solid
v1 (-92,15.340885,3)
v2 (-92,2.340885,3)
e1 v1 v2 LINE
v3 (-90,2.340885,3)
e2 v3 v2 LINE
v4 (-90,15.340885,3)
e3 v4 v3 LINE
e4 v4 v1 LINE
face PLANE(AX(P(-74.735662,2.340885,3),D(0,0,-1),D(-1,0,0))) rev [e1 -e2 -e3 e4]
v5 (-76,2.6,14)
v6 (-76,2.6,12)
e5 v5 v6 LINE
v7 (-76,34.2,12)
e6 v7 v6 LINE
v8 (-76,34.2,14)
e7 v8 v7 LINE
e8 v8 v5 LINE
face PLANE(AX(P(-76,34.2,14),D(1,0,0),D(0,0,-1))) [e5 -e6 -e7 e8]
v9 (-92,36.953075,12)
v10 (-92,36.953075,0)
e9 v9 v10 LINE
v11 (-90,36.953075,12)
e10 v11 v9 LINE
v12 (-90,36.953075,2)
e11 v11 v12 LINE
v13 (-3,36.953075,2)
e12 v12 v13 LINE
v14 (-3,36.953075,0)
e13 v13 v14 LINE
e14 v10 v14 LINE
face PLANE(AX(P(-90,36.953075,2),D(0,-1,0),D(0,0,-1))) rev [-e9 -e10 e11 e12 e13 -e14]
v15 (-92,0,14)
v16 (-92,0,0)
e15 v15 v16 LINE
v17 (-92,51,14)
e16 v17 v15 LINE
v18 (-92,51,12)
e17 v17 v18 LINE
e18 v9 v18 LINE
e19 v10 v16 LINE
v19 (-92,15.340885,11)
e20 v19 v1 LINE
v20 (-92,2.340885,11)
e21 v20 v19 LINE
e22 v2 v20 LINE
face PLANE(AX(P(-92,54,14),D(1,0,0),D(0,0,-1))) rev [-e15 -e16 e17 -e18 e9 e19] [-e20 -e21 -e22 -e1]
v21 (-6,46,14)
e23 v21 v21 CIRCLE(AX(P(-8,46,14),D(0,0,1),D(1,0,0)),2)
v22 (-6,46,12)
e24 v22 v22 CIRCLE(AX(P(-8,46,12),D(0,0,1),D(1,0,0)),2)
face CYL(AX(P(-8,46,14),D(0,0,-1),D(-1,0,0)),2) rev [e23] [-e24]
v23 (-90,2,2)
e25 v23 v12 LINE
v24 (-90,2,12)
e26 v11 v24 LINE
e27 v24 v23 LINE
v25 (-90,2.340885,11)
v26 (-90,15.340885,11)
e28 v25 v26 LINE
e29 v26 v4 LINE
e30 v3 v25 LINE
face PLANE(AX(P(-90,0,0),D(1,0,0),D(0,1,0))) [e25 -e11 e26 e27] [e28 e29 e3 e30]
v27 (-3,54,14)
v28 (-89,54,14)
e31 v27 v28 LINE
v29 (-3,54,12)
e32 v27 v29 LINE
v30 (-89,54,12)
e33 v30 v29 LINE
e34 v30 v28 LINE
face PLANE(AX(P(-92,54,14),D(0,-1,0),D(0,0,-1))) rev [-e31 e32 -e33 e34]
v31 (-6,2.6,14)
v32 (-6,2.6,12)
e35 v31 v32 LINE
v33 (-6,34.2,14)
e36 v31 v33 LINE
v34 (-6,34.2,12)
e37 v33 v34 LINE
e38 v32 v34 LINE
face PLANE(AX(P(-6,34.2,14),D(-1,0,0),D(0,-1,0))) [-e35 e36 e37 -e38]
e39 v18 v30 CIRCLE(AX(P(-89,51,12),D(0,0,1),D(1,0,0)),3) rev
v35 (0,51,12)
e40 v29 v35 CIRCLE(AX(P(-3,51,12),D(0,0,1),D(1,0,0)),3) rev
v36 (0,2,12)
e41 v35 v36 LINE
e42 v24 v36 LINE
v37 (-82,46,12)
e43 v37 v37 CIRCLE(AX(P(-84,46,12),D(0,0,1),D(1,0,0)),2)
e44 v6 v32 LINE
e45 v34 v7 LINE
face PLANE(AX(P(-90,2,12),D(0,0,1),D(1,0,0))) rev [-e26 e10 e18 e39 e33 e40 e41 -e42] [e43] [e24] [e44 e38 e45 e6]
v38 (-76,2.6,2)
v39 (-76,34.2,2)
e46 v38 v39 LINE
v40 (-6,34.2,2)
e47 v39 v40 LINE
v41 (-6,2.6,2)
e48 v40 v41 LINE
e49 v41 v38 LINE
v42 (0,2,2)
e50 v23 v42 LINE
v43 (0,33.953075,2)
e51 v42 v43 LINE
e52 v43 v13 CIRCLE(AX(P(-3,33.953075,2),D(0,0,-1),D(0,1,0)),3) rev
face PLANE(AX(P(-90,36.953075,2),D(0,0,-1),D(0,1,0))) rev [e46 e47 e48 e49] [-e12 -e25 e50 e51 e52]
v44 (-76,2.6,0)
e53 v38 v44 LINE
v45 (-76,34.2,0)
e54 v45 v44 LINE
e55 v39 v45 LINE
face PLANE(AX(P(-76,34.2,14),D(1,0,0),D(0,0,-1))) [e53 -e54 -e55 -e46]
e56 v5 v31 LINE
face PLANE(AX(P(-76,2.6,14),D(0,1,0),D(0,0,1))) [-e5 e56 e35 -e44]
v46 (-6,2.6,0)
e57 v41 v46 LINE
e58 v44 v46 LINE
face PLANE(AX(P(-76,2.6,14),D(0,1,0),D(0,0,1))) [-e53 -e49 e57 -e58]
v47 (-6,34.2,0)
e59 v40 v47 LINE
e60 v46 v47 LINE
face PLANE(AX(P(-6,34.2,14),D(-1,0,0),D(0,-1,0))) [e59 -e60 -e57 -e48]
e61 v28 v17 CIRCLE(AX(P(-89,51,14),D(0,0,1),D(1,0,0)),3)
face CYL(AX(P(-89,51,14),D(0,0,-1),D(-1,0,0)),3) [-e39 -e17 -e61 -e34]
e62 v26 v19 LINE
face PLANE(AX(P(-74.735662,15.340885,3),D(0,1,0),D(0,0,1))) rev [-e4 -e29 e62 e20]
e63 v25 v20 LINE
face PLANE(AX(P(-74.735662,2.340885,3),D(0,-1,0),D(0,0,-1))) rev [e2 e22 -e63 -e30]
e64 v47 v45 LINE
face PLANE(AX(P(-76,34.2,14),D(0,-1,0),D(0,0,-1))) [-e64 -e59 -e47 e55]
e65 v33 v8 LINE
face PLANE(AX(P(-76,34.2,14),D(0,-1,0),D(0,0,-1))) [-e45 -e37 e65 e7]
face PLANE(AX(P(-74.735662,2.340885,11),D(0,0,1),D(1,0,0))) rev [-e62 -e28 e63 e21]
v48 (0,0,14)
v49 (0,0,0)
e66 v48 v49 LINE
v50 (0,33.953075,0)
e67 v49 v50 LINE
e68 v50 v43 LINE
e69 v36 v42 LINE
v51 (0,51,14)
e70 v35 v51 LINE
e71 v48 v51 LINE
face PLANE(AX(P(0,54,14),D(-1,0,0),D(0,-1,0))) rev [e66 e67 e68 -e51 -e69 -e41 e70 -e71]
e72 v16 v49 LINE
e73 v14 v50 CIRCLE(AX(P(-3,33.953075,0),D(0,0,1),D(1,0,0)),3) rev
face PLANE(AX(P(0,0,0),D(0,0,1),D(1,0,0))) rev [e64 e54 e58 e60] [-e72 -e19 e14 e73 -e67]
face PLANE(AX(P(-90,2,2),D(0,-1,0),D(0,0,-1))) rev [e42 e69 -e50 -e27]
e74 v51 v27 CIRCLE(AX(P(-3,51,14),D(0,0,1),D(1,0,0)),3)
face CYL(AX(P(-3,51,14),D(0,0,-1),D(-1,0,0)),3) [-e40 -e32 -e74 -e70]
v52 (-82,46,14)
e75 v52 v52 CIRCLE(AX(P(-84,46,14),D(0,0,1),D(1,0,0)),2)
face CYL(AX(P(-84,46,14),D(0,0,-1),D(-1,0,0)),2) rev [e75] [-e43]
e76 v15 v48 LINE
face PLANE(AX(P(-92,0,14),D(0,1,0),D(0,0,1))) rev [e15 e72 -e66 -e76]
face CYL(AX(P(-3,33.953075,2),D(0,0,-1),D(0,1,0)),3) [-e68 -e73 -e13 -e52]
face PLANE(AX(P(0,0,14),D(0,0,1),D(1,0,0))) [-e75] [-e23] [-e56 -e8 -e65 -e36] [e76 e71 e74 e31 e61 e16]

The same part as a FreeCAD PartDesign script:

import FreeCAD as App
import Part
import Sketcher

V = App.Vector
Q = App.Units.Quantity


def edges_at(feature, points):
    """Names of the edges that pass closest to the given points."""
    edges = feature.Shape.Edges
    near = lambda p: min(range(len(edges)), key=lambda i: edges[i].distToShape(Part.Vertex(*p))[0])
    return sorted({f"Edge{near(p) + 1}" for p in points})

doc = App.newDocument("Part")
params = doc.addObject("Spreadsheet::Sheet", "Params")
for row, (alias, value) in enumerate([
    ("sketch1_diameter", "4 mm"),
    ("sketch1_width", "92 mm"),
    ("sketch1_width2", "70 mm"),
    ("sketch1_height", "54 mm"),
    ("sketch1_height2", "31.6 mm"),
    ("pad1_length", "14 mm"),
    ("sketch2_width", "52 mm"),
    ("sketch2_height", "2 mm"),
    ("sketch2_height2", "12 mm"),
    ("pocket1_length", "90 mm"),
    ("sketch3_width", "2 mm"),
    ("pocket2_length", "12 mm"),
    ("sketch4_width", "13 mm"),
    ("sketch4_height", "8 mm"),
    ("pocket3_length", "2 mm"),
    ("fillet_radius", "3 mm"),
    ("fillet2_radius", "3 mm"),
    ("fillet3_radius", "3 mm"),
], start=1):
    params.set(f"A{row}", alias)
    params.set(f"B{row}", "=" + value)
    params.setAlias(f"B{row}", alias)

body = doc.addObject("PartDesign::Body", "Body")

# Sketch on XY plane
sketch1 = body.newObject("Sketcher::SketchObject", "Sketch")
sketch1.AttachmentSupport = (doc.getObject("XY_Plane"), [""])
sketch1.MapMode = "FlatFace"
sketch1.addGeometry(Part.LineSegment(V(-92, 54, 0), V(-92, 0, 0)), False)
sketch1.addGeometry(Part.LineSegment(V(-92, 0, 0), V(0, 0, 0)), False)
sketch1.addGeometry(Part.LineSegment(V(0, 0, 0), V(0, 54, 0)), False)
sketch1.addGeometry(Part.LineSegment(V(0, 54, 0), V(-92, 54, 0)), False)
sketch1.addGeometry(Part.LineSegment(V(-6, 2.6, 0), V(-76, 2.6, 0)), False)
sketch1.addGeometry(Part.LineSegment(V(-76, 2.6, 0), V(-76, 34.2, 0)), False)
sketch1.addGeometry(Part.LineSegment(V(-76, 34.2, 0), V(-6, 34.2, 0)), False)
sketch1.addGeometry(Part.LineSegment(V(-6, 34.2, 0), V(-6, 2.6, 0)), False)
sketch1.addGeometry(Part.Circle(V(-84, 46, 0), V(0, 0, 1), 2), False)
sketch1.addGeometry(Part.Circle(V(-8, 46, 0), V(0, 0, 1), 2), False)
sketch1.addConstraint(Sketcher.Constraint("Coincident", 0, 2, 1, 1))
sketch1.addConstraint(Sketcher.Constraint("Coincident", 1, 2, 2, 1))
sketch1.addConstraint(Sketcher.Constraint("Coincident", 2, 2, 3, 1))
sketch1.addConstraint(Sketcher.Constraint("Coincident", 3, 2, 0, 1))
sketch1.addConstraint(Sketcher.Constraint("Coincident", 4, 2, 5, 1))
sketch1.addConstraint(Sketcher.Constraint("Coincident", 5, 2, 6, 1))
sketch1.addConstraint(Sketcher.Constraint("Coincident", 6, 2, 7, 1))
sketch1.addConstraint(Sketcher.Constraint("Coincident", 7, 2, 4, 1))
sketch1.addConstraint(Sketcher.Constraint("Vertical", 0))
sketch1.addConstraint(Sketcher.Constraint("Horizontal", 1))
sketch1.addConstraint(Sketcher.Constraint("Vertical", 2))
sketch1.addConstraint(Sketcher.Constraint("Horizontal", 3))
sketch1.addConstraint(Sketcher.Constraint("Horizontal", 4))
sketch1.addConstraint(Sketcher.Constraint("Vertical", 5))
sketch1.addConstraint(Sketcher.Constraint("Horizontal", 6))
sketch1.addConstraint(Sketcher.Constraint("Vertical", 7))
sketch1.addConstraint(Sketcher.Constraint("Coincident", 1, 2, -1, 1))
sketch1.addConstraint(Sketcher.Constraint("Equal", 8, 9))
sketch1.addConstraint(Sketcher.Constraint("Horizontal", 8, 3, 9, 3))
sketch1.addConstraint(Sketcher.Constraint("Diameter", 8, Q("4 mm")))
sketch1.addConstraint(Sketcher.Constraint("DistanceX", 1, 1, 1, 2, Q("92 mm")))
sketch1.addConstraint(Sketcher.Constraint("DistanceX", 4, 2, 4, 1, Q("70 mm")))
sketch1.addConstraint(Sketcher.Constraint("DistanceY", 0, 2, 0, 1, Q("54 mm")))
sketch1.addConstraint(Sketcher.Constraint("DistanceY", 5, 1, 5, 2, Q("31.6 mm")))
sketch1.addConstraint(Sketcher.Constraint("DistanceX", 8, 3, -1, 1, Q("84 mm")))
sketch1.addConstraint(Sketcher.Constraint("DistanceY", -1, 1, 8, 3, Q("46 mm")))
sketch1.addConstraint(Sketcher.Constraint("DistanceX", 9, 3, -1, 1, Q("8 mm")))
sketch1.addConstraint(Sketcher.Constraint("DistanceX", 4, 2, -1, 1, Q("76 mm")))
sketch1.addConstraint(Sketcher.Constraint("DistanceY", -1, 1, 4, 2, Q("2.6 mm")))
sketch1.setExpression("Constraints[19]", "Params.sketch1_diameter")
sketch1.setExpression("Constraints[20]", "Params.sketch1_width")
sketch1.setExpression("Constraints[21]", "Params.sketch1_width2")
sketch1.setExpression("Constraints[22]", "Params.sketch1_height")
sketch1.setExpression("Constraints[23]", "Params.sketch1_height2")
pad1 = body.newObject("PartDesign::Pad", "Pad")
pad1.Profile = sketch1
pad1.setExpression("Length", "Params.pad1_length")

# Sketch on YZ plane
sketch2 = body.newObject("Sketcher::SketchObject", "Sketch001")
sketch2.AttachmentSupport = (doc.getObject("YZ_Plane"), [""])
sketch2.MapMode = "FlatFace"
sketch2.addGeometry(Part.LineSegment(V(2, 2, 0), V(37, 2, 0)), False)
sketch2.addGeometry(Part.LineSegment(V(37, 2, 0), V(37, 0, 0)), False)
sketch2.addGeometry(Part.LineSegment(V(37, 0, 0), V(54, 0, 0)), False)
sketch2.addGeometry(Part.LineSegment(V(54, 0, 0), V(54, 12, 0)), False)
sketch2.addGeometry(Part.LineSegment(V(54, 12, 0), V(2, 12, 0)), False)
sketch2.addGeometry(Part.LineSegment(V(2, 12, 0), V(2, 2, 0)), False)
sketch2.addConstraint(Sketcher.Constraint("Coincident", 0, 2, 1, 1))
sketch2.addConstraint(Sketcher.Constraint("Coincident", 1, 2, 2, 1))
sketch2.addConstraint(Sketcher.Constraint("Coincident", 2, 2, 3, 1))
sketch2.addConstraint(Sketcher.Constraint("Coincident", 3, 2, 4, 1))
sketch2.addConstraint(Sketcher.Constraint("Coincident", 4, 2, 5, 1))
sketch2.addConstraint(Sketcher.Constraint("Coincident", 5, 2, 0, 1))
sketch2.addConstraint(Sketcher.Constraint("Horizontal", 0))
sketch2.addConstraint(Sketcher.Constraint("Vertical", 1))
sketch2.addConstraint(Sketcher.Constraint("Horizontal", 2))
sketch2.addConstraint(Sketcher.Constraint("Vertical", 3))
sketch2.addConstraint(Sketcher.Constraint("Horizontal", 4))
sketch2.addConstraint(Sketcher.Constraint("Vertical", 5))
sketch2.addConstraint(Sketcher.Constraint("PointOnObject", 1, 2, -1))
sketch2.addConstraint(Sketcher.Constraint("DistanceX", 4, 2, 4, 1, Q("52 mm")))
sketch2.addConstraint(Sketcher.Constraint("DistanceY", 1, 2, 1, 1, Q("2 mm")))
sketch2.addConstraint(Sketcher.Constraint("DistanceY", 3, 1, 3, 2, Q("12 mm")))
sketch2.addConstraint(Sketcher.Constraint("DistanceX", -1, 1, 2, 2, Q("54 mm")))
sketch2.addConstraint(Sketcher.Constraint("DistanceX", 0, 1, 0, 2, Q("34.953075 mm")))
sketch2.setExpression("Constraints[13]", "Params.sketch2_width")
sketch2.setExpression("Constraints[14]", "Params.sketch2_height")
sketch2.setExpression("Constraints[15]", "Params.sketch2_height2")
pocket1 = body.newObject("PartDesign::Pocket", "Pocket")
pocket1.Profile = sketch2
pocket1.setExpression("Length", "Params.pocket1_length")

# Sketch on XY plane
sketch3 = body.newObject("Sketcher::SketchObject", "Sketch002")
sketch3.AttachmentSupport = (doc.getObject("XY_Plane"), [""])
sketch3.MapMode = "FlatFace"
sketch3.addGeometry(Part.LineSegment(V(-90, 54, 0), V(-90, 37, 0)), False)
sketch3.addGeometry(Part.LineSegment(V(-90, 37, 0), V(-92, 37, 0)), False)
sketch3.addGeometry(Part.LineSegment(V(-92, 37, 0), V(-92, 54, 0)), False)
sketch3.addGeometry(Part.LineSegment(V(-92, 54, 0), V(-90, 54, 0)), False)
sketch3.addConstraint(Sketcher.Constraint("Coincident", 0, 2, 1, 1))
sketch3.addConstraint(Sketcher.Constraint("Coincident", 1, 2, 2, 1))
sketch3.addConstraint(Sketcher.Constraint("Coincident", 2, 2, 3, 1))
sketch3.addConstraint(Sketcher.Constraint("Coincident", 3, 2, 0, 1))
sketch3.addConstraint(Sketcher.Constraint("Vertical", 0))
sketch3.addConstraint(Sketcher.Constraint("Horizontal", 1))
sketch3.addConstraint(Sketcher.Constraint("Vertical", 2))
sketch3.addConstraint(Sketcher.Constraint("Horizontal", 3))
sketch3.addConstraint(Sketcher.Constraint("DistanceX", 1, 2, 1, 1, Q("2 mm")))
sketch3.addConstraint(Sketcher.Constraint("DistanceX", 0, 2, -1, 1, Q("90 mm")))
sketch3.addConstraint(Sketcher.Constraint("DistanceY", -1, 1, 2, 2, Q("54 mm")))
sketch3.addConstraint(Sketcher.Constraint("DistanceY", 0, 2, 0, 1, Q("17.046925 mm")))
sketch3.setExpression("Constraints[8]", "Params.sketch3_width")
pocket2 = body.newObject("PartDesign::Pocket", "Pocket001")
pocket2.Profile = sketch3
pocket2.setExpression("Length", "Params.pocket2_length")
pocket2.Reversed = True

# Sketch on YZ plane
sketch4 = body.newObject("Sketcher::SketchObject", "Sketch003")
sketch4.AttachmentSupport = (doc.getObject("YZ_Plane"), [""])
sketch4.MapMode = "FlatFace"
sketch4.AttachmentOffset = App.Placement(V(0, 0, -92), App.Rotation())
sketch4.addGeometry(Part.LineSegment(V(15, 3, 0), V(2, 3, 0)), False)
sketch4.addGeometry(Part.LineSegment(V(2, 3, 0), V(2, 11, 0)), False)
sketch4.addGeometry(Part.LineSegment(V(2, 11, 0), V(15, 11, 0)), False)
sketch4.addGeometry(Part.LineSegment(V(15, 11, 0), V(15, 3, 0)), False)
sketch4.addConstraint(Sketcher.Constraint("Coincident", 0, 2, 1, 1))
sketch4.addConstraint(Sketcher.Constraint("Coincident", 1, 2, 2, 1))
sketch4.addConstraint(Sketcher.Constraint("Coincident", 2, 2, 3, 1))
sketch4.addConstraint(Sketcher.Constraint("Coincident", 3, 2, 0, 1))
sketch4.addConstraint(Sketcher.Constraint("Horizontal", 0))
sketch4.addConstraint(Sketcher.Constraint("Vertical", 1))
sketch4.addConstraint(Sketcher.Constraint("Horizontal", 2))
sketch4.addConstraint(Sketcher.Constraint("Vertical", 3))
sketch4.addConstraint(Sketcher.Constraint("DistanceX", 0, 2, 0, 1, Q("13 mm")))
sketch4.addConstraint(Sketcher.Constraint("DistanceY", 1, 1, 1, 2, Q("8 mm")))
sketch4.addConstraint(Sketcher.Constraint("DistanceY", -1, 1, 0, 2, Q("3 mm")))
sketch4.addConstraint(Sketcher.Constraint("DistanceX", -1, 1, 0, 2, Q("2.340885 mm")))
sketch4.setExpression("Constraints[8]", "Params.sketch4_width")
sketch4.setExpression("Constraints[9]", "Params.sketch4_height")
pocket3 = body.newObject("PartDesign::Pocket", "Pocket002")
pocket3.Profile = sketch4
pocket3.setExpression("Length", "Params.pocket3_length")
pocket3.Reversed = True
doc.recompute()

fillet = body.newObject("PartDesign::Fillet", "Fillet")
fillet.Base = (pocket3, edges_at(pocket3, [(-92, 54, 13)]))
fillet.setExpression("Radius", "Params.fillet_radius")
doc.recompute()

fillet2 = body.newObject("PartDesign::Fillet", "Fillet001")
fillet2.Base = (fillet, edges_at(fillet, [(0, 54, 13)]))
fillet2.setExpression("Radius", "Params.fillet2_radius")
doc.recompute()

fillet3 = body.newObject("PartDesign::Fillet", "Fillet002")
fillet3.Base = (fillet2, edges_at(fillet2, [(0, 36.953, 1)]))
fillet3.setExpression("Radius", "Params.fillet3_radius")

doc.recompute()
